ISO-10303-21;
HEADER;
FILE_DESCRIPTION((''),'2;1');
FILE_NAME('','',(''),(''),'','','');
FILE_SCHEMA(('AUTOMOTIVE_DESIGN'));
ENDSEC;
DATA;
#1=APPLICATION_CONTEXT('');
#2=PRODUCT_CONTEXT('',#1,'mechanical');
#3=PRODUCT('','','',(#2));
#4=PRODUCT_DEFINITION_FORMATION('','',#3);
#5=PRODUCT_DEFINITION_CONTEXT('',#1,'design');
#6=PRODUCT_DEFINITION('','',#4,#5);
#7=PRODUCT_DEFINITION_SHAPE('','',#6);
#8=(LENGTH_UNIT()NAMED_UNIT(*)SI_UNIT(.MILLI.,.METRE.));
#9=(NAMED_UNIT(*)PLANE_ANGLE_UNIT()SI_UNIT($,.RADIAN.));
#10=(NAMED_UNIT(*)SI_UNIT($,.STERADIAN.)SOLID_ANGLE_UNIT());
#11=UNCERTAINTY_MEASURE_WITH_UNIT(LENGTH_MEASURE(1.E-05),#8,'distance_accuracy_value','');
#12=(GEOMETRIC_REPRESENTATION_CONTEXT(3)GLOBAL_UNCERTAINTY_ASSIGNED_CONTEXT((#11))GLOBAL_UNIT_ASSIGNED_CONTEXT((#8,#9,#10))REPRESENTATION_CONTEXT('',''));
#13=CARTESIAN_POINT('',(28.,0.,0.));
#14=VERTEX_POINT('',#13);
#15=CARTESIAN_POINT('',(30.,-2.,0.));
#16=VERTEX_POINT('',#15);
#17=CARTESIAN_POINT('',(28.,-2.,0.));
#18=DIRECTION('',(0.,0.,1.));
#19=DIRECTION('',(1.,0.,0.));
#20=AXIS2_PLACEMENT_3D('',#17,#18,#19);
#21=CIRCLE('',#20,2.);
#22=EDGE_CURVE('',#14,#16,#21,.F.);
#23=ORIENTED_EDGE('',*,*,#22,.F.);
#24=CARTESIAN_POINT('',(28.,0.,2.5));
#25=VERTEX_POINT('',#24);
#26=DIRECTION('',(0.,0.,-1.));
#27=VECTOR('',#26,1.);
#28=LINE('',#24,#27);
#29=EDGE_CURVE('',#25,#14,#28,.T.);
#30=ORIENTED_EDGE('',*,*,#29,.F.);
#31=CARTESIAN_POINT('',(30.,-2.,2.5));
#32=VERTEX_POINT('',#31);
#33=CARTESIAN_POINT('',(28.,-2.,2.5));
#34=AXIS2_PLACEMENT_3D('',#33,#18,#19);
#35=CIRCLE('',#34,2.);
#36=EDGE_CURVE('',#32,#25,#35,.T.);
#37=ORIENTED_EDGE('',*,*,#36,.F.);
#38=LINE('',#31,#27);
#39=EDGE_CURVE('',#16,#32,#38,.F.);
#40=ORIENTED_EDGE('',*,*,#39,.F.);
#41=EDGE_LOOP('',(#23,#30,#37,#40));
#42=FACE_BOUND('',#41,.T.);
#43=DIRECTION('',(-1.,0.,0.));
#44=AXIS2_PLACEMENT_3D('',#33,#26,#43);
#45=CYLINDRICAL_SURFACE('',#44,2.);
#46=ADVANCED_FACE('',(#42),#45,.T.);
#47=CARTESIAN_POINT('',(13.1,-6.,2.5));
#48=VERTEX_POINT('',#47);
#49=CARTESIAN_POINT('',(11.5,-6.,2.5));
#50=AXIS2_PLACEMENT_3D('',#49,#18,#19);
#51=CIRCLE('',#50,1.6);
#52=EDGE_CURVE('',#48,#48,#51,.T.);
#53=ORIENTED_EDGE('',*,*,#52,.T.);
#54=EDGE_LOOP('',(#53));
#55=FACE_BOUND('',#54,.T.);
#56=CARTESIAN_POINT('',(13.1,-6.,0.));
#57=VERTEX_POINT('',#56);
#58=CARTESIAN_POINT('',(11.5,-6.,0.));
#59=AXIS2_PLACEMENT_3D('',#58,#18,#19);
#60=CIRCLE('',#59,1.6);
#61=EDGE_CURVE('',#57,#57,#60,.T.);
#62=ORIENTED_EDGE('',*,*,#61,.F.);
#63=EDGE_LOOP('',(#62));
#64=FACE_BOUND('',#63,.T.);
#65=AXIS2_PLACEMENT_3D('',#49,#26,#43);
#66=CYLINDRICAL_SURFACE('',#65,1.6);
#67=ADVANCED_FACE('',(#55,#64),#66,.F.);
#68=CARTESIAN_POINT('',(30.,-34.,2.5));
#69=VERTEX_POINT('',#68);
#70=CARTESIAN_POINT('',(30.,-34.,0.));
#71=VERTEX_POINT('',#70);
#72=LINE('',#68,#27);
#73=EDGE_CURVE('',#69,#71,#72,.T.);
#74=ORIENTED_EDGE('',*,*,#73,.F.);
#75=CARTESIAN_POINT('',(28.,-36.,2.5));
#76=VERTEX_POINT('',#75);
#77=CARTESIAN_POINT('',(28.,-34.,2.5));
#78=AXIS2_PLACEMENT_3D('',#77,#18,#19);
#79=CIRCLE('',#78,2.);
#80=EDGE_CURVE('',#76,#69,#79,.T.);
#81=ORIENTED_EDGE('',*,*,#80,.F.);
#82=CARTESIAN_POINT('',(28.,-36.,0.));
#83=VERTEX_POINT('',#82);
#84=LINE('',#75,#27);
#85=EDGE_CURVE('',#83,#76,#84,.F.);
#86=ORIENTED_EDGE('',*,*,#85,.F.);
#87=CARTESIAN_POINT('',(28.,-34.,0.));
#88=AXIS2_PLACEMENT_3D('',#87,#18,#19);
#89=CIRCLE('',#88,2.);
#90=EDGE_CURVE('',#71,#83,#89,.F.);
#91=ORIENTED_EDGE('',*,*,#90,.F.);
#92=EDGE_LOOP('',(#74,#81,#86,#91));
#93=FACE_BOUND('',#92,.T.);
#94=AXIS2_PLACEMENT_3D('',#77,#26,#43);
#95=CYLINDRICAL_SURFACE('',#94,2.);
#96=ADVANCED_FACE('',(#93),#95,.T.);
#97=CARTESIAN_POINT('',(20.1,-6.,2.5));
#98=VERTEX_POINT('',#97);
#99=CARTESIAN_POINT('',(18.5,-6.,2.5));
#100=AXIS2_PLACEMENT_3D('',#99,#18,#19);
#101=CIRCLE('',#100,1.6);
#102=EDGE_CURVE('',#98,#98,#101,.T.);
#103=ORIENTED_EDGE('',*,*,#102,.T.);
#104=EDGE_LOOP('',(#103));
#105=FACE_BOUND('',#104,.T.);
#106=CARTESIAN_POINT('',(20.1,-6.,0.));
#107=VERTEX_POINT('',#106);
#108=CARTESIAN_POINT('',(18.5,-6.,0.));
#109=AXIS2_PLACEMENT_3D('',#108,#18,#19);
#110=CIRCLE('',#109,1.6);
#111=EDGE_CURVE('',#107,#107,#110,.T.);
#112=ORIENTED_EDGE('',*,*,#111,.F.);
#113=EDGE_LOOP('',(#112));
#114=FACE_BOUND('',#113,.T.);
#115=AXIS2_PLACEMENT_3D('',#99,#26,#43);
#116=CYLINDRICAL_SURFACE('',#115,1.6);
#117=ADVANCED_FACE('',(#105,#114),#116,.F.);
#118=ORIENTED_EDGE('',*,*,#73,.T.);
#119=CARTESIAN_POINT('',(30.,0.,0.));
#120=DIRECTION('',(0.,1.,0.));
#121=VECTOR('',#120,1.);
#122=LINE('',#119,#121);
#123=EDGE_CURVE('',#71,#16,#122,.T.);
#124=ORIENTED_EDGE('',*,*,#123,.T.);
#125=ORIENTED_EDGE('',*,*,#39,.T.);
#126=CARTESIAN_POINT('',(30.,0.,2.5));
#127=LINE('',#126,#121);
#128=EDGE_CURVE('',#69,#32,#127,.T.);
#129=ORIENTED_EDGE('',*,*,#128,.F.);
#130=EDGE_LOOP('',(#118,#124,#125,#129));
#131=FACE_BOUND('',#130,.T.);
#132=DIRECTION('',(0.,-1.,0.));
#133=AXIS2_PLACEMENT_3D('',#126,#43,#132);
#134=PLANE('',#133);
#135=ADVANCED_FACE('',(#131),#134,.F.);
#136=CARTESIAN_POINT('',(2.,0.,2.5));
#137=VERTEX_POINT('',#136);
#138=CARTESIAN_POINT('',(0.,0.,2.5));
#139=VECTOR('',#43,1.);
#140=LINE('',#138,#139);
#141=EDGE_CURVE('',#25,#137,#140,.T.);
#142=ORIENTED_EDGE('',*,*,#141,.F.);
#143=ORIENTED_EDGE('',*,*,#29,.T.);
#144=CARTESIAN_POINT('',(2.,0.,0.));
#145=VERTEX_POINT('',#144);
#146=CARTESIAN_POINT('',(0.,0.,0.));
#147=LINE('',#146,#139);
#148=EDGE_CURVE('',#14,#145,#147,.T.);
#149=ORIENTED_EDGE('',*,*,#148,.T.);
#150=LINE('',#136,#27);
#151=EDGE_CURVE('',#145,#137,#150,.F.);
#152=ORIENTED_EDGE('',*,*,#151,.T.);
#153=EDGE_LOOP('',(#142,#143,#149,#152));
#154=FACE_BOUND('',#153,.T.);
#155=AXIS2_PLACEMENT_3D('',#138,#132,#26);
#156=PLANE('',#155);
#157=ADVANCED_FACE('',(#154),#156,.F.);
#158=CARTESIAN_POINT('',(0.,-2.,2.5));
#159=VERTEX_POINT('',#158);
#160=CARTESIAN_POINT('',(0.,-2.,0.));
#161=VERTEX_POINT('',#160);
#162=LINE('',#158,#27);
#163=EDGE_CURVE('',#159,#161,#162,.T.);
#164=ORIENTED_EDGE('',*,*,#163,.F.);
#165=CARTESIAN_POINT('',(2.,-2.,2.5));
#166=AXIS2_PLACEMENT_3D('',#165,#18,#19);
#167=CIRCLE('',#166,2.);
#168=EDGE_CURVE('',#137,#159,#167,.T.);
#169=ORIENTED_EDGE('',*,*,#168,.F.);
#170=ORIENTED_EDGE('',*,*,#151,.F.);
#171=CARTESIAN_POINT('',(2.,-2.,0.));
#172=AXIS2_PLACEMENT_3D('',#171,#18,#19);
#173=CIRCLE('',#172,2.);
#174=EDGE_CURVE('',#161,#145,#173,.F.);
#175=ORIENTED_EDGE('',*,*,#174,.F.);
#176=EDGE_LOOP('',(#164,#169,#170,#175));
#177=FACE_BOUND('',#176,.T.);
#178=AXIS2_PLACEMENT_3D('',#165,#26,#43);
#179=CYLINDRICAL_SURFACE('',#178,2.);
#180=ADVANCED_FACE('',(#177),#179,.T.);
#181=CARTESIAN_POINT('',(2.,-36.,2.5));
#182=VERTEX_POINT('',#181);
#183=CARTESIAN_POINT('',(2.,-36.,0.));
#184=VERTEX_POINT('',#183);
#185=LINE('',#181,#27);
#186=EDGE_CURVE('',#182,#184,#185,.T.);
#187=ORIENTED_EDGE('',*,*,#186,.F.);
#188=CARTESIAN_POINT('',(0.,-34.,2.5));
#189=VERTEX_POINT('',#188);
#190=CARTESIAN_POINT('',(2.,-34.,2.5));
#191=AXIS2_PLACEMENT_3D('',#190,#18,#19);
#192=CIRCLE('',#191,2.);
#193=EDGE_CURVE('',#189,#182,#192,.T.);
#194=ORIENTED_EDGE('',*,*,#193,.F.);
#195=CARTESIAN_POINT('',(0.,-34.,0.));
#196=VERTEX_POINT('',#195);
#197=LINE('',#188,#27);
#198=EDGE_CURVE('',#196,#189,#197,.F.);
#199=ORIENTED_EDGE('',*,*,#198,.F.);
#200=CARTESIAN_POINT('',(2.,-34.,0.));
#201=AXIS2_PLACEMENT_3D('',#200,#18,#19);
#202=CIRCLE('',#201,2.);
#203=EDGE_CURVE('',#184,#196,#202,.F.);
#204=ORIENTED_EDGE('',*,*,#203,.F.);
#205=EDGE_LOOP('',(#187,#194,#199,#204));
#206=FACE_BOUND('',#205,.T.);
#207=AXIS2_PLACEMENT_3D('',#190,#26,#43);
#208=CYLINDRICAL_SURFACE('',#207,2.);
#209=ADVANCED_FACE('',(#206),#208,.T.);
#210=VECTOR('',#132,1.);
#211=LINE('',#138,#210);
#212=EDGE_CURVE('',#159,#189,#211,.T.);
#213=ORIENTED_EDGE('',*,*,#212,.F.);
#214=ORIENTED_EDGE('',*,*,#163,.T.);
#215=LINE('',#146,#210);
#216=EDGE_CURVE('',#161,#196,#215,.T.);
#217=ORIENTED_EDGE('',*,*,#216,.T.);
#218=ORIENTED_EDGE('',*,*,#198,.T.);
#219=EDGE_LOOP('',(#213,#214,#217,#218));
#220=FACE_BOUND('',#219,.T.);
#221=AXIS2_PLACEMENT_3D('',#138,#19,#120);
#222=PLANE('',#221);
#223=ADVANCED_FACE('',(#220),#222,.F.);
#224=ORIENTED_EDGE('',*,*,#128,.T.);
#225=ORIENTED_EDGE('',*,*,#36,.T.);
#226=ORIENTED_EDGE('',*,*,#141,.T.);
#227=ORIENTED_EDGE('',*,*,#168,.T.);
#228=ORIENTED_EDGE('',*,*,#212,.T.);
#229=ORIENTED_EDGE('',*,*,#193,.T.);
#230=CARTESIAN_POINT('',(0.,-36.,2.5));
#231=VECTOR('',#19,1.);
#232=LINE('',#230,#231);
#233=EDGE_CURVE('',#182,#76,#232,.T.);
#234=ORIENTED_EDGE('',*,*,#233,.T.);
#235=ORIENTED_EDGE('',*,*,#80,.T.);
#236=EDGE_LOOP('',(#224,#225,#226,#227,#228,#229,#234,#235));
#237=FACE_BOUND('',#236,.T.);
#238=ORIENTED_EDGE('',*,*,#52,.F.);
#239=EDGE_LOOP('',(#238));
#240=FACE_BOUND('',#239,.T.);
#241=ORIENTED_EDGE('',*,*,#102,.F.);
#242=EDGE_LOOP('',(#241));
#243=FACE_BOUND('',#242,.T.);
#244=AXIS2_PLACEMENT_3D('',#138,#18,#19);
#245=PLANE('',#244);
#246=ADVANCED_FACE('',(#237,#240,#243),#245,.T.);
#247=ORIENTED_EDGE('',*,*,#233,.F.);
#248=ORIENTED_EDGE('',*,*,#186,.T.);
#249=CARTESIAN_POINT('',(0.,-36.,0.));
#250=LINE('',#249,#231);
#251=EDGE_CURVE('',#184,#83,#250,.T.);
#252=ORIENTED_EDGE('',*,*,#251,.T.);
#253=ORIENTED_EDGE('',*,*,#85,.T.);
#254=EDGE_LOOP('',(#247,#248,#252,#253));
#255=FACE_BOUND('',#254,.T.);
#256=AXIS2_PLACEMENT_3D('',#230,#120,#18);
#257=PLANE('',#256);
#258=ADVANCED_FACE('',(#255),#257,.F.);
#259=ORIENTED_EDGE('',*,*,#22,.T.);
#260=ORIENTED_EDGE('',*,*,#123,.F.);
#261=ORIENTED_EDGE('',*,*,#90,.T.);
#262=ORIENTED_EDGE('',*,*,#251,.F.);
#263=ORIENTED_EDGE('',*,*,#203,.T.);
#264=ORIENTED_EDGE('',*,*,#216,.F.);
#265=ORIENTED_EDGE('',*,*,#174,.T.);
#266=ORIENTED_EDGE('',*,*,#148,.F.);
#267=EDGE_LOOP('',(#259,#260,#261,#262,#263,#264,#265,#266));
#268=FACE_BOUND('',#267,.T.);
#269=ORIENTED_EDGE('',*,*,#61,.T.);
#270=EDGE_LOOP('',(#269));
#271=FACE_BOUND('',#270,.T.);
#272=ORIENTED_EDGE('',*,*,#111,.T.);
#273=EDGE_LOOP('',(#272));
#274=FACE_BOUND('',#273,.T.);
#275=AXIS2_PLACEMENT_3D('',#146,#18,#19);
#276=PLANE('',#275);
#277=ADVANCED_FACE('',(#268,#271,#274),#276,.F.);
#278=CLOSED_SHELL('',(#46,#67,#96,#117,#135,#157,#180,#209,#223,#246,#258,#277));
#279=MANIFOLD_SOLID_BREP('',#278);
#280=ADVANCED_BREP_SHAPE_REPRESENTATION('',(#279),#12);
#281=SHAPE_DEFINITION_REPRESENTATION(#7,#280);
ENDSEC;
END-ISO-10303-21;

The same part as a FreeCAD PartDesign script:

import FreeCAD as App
import Part
import Sketcher


def edges_at(feature, points):
    """Names of the edges that pass closest to the given points."""
    edges = feature.Shape.Edges
    near = lambda p: min(range(len(edges)), key=lambda i: edges[i].distToShape(Part.Vertex(*p))[0])
    return sorted({f"Edge{near(p) + 1}" for p in points})

doc = App.newDocument("Part")
body = doc.addObject("PartDesign::Body", "Body")

# Sketch on XY plane
sketch1 = body.newObject("Sketcher::SketchObject", "Sketch")
sketch1.AttachmentSupport = (doc.getObject("XY_Plane"), [""])
sketch1.MapMode = "FlatFace"
sketch1.addGeometry([
    Part.LineSegment(App.Vector(0, 0, 0), App.Vector(0, -36, 0)),  # 0
    Part.LineSegment(App.Vector(0, -36, 0), App.Vector(30, -36, 0)),  # 1
    Part.LineSegment(App.Vector(30, -36, 0), App.Vector(30, 0, 0)),  # 2
    Part.LineSegment(App.Vector(30, 0, 0), App.Vector(0, 0, 0)),  # 3
    Part.Circle(App.Vector(11.5, -6, 0), App.Vector(0, 0, 1), 1.6),  # 4
    Part.Circle(App.Vector(18.5, -6, 0), App.Vector(0, 0, 1), 1.6),  # 5
], False)
sketch1.addConstraint([
    Sketcher.Constraint("Coincident", 0, 2, 1, 1),
    Sketcher.Constraint("Coincident", 1, 2, 2, 1),
    Sketcher.Constraint("Coincident", 2, 2, 3, 1),
    Sketcher.Constraint("Coincident", 3, 2, 0, 1),
    Sketcher.Constraint("Vertical", 0),
    Sketcher.Constraint("Horizontal", 1),
    Sketcher.Constraint("Vertical", 2),
    Sketcher.Constraint("Horizontal", 3),
    Sketcher.Constraint("Coincident", 3, 2, -1, 1),
    Sketcher.Constraint("Equal", 4, 5),
    Sketcher.Constraint("Horizontal", 4, 3, 5, 3),
    Sketcher.Constraint("Diameter", 4, 3.2),
    Sketcher.Constraint("DistanceX", 1, 1, 1, 2, 30.0),
    Sketcher.Constraint("DistanceY", 0, 2, 0, 1, 36.0),
    Sketcher.Constraint("DistanceY", 4, 3, -1, 1, 6.0),
    Sketcher.Constraint("DistanceX", 4, 3, 5, 3, 7.0),
    Sketcher.Constraint("DistanceX", -1, 1, 4, 3, 11.5),
])
pad1 = body.newObject("PartDesign::Pad", "Pad")
pad1.Profile = sketch1
pad1.Length = 2.5
doc.recompute()

fillet = body.newObject("PartDesign::Fillet", "Fillet")
fillet.Base = (pad1, edges_at(pad1, [
    (0, 0, 1.25),
    (30, 0, 1.25),
    (30, -36, 1.25),
    (0, -36, 1.25),
]))
fillet.Radius = 2

doc.recompute()
